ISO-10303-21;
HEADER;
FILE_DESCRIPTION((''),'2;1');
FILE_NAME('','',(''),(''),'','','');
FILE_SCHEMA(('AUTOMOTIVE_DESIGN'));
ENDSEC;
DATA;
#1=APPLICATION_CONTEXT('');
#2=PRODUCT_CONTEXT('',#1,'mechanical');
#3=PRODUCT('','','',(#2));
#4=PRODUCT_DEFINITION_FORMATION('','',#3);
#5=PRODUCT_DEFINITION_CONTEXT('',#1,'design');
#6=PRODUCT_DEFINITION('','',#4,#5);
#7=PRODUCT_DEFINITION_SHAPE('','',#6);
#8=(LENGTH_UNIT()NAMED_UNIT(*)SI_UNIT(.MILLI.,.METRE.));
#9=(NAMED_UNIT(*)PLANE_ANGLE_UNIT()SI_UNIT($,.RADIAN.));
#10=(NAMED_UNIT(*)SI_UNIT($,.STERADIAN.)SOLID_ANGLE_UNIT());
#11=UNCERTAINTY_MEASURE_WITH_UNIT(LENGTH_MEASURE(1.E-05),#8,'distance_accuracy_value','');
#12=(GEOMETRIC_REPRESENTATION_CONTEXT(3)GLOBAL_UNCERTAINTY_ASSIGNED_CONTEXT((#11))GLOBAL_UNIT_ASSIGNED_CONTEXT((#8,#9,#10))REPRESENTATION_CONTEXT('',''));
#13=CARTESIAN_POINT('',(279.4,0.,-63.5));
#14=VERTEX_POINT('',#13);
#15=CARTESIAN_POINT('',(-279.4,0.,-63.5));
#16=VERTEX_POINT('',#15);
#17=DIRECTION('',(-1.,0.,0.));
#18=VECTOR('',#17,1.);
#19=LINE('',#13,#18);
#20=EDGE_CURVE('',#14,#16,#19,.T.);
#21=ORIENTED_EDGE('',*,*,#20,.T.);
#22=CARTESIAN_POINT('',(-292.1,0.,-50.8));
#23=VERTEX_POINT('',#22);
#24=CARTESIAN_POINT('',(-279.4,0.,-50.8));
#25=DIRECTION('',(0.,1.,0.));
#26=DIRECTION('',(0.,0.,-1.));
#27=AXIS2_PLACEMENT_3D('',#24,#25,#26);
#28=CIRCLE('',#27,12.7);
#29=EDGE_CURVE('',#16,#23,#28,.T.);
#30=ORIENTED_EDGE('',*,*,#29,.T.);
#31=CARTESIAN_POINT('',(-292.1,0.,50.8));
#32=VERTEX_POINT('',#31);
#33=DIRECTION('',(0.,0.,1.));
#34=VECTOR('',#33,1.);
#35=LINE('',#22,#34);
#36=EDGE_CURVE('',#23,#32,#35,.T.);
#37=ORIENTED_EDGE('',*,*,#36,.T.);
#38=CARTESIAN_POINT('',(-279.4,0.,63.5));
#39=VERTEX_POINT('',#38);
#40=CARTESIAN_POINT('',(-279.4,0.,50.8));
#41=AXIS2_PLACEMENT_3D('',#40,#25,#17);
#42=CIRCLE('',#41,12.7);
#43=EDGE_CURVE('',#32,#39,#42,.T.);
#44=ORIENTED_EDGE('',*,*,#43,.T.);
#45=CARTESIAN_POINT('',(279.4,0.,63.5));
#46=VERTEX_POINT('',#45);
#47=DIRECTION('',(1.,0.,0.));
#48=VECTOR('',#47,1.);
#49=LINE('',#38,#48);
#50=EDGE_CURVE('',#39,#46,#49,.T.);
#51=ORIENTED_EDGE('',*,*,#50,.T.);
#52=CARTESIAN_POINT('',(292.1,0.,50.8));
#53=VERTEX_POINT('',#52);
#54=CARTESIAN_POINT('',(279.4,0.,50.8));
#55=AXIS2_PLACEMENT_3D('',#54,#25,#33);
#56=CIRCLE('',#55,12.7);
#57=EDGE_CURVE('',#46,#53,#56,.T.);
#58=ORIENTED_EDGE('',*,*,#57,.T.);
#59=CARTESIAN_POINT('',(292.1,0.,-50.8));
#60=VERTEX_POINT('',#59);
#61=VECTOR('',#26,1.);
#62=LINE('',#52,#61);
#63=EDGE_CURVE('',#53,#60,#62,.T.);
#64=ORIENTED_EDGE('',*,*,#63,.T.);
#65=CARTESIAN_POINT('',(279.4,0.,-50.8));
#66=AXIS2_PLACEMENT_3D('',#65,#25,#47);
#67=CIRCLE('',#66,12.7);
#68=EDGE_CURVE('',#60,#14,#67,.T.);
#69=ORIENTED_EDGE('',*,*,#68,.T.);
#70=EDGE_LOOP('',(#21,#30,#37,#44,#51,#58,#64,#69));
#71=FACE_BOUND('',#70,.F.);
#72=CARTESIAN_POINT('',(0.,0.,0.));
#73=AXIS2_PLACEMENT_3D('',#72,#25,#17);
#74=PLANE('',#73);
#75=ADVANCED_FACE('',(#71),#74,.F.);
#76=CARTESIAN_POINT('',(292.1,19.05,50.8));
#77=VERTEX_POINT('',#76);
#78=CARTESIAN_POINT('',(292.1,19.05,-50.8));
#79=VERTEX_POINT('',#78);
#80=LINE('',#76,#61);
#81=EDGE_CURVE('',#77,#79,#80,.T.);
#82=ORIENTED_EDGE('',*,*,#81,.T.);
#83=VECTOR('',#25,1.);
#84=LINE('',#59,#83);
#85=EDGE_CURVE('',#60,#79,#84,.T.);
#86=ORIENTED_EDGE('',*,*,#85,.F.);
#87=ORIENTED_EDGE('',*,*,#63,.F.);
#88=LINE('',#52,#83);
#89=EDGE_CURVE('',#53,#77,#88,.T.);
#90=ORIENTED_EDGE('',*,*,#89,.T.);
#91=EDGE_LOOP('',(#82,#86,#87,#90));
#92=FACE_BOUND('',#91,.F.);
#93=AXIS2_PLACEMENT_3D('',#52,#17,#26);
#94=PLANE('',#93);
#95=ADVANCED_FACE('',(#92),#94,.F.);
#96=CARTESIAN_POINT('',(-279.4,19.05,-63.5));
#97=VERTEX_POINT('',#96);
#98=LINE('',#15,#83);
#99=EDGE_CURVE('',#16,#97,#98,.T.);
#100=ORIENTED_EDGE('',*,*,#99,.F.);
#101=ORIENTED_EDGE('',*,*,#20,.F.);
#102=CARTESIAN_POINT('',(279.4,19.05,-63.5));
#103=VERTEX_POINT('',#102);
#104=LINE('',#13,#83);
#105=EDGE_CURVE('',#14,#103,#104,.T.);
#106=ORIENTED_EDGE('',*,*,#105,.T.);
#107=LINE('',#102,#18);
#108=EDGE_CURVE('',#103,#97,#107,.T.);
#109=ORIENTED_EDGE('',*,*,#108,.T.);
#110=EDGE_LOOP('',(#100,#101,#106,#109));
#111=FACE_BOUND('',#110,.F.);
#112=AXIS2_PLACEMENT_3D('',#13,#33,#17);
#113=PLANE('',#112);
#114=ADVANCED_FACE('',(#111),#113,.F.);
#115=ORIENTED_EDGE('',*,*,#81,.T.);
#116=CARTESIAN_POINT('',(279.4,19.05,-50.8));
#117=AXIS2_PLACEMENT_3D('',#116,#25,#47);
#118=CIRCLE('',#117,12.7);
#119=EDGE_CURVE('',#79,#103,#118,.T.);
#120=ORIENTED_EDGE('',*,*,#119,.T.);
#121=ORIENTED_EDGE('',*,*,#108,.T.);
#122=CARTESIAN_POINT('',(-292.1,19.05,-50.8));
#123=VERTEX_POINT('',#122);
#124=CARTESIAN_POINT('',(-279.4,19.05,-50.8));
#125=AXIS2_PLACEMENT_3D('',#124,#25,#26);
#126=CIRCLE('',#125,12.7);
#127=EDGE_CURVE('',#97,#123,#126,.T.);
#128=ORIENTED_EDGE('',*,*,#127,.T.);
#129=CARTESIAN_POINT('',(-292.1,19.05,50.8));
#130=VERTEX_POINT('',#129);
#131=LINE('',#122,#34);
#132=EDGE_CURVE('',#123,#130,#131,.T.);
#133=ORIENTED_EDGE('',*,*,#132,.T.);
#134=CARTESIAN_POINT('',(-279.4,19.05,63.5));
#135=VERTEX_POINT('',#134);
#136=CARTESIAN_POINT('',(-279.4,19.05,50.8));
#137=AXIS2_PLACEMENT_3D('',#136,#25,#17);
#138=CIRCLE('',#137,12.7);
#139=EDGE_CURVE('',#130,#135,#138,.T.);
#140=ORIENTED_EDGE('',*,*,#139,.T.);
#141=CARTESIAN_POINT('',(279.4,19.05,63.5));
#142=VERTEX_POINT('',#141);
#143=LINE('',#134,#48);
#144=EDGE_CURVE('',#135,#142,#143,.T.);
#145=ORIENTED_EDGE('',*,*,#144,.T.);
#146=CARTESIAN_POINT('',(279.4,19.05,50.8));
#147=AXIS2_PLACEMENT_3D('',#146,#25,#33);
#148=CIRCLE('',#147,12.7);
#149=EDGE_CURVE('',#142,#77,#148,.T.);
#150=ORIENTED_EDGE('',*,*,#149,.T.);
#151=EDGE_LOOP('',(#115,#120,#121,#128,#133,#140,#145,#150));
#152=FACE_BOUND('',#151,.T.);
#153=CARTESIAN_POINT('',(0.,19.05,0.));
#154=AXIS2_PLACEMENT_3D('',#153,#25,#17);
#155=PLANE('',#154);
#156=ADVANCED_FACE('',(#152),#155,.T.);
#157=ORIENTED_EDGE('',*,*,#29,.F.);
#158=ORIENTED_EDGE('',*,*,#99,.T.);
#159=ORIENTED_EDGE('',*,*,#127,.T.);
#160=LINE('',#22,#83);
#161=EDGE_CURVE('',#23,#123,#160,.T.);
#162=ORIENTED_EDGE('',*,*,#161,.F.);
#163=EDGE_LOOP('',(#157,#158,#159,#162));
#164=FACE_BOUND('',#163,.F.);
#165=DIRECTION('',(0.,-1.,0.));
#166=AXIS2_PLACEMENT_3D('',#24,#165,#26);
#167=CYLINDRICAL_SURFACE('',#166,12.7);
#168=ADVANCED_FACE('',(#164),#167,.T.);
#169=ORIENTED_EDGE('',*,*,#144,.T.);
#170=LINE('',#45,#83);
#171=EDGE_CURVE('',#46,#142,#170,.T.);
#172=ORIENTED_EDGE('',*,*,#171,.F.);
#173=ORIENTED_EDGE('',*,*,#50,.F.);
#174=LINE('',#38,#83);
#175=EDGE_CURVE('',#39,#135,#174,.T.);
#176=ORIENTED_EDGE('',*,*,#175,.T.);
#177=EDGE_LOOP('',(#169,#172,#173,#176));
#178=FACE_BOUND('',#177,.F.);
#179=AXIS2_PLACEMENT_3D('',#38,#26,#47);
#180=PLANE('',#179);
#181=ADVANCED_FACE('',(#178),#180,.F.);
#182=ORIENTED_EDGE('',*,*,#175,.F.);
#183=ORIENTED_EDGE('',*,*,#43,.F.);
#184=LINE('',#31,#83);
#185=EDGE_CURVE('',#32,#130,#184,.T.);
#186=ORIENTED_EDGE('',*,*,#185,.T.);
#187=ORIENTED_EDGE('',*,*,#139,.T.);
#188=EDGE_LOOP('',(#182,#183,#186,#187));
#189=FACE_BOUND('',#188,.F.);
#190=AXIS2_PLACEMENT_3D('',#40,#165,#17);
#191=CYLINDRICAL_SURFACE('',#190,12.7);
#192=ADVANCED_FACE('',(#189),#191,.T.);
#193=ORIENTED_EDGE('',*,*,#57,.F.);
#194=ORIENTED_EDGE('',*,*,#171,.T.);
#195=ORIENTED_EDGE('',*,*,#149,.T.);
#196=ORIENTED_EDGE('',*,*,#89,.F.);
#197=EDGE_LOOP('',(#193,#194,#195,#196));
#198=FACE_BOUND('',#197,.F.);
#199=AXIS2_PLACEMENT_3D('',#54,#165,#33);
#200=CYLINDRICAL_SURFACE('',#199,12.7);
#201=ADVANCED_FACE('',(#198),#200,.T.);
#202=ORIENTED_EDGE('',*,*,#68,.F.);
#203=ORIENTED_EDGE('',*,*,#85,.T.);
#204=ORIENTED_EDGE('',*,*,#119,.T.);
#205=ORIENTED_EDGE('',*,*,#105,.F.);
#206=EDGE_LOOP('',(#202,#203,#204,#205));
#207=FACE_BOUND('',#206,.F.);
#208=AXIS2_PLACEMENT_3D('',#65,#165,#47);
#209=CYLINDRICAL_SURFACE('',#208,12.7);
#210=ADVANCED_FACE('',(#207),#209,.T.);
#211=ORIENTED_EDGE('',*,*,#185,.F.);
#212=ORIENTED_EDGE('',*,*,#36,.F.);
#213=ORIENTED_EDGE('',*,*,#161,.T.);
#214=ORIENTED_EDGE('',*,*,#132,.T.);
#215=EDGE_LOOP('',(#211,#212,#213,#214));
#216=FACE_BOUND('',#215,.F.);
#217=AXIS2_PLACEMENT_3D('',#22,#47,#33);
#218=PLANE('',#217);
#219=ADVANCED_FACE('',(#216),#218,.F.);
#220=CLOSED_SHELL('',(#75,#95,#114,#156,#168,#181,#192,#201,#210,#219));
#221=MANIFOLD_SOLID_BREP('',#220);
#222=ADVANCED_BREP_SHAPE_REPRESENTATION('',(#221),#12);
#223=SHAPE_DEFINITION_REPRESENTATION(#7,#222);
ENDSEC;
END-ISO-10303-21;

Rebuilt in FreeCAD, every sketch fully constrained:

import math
import FreeCAD as App
import Part
import Sketcher

V = App.Vector
Q = App.Units.Quantity

doc = App.newDocument("Part")
body = doc.addObject("PartDesign::Body", "Body")

# Sketch on XZ plane
sketch1 = doc.addObject("Sketcher::SketchObject", "Sketch")
body.addObject(sketch1)
sketch1.AttachmentSupport = (doc.XZ_Plane, [""])
sketch1.MapMode = "FlatFace"
sketch1.addGeometry(Part.ArcOfCircle(Part.Circle(V(-279, 51, 0), V(0, 0, 1), 13), math.radians(90), math.radians(180)), False)
sketch1.addGeometry(Part.LineSegment(V(-279, 64, 0), V(279, 64, 0)), False)
sketch1.addGeometry(Part.ArcOfCircle(Part.Circle(V(279, 51, 0), V(0, 0, 1), 13), math.radians(0), math.radians(90)), False)
sketch1.addGeometry(Part.LineSegment(V(292, 51, 0), V(292, -51, 0)), False)
sketch1.addGeometry(Part.ArcOfCircle(Part.Circle(V(279, -51, 0), V(0, 0, 1), 13), math.radians(-90), math.radians(0)), False)
sketch1.addGeometry(Part.LineSegment(V(279, -64, 0), V(-279, -64, 0)), False)
sketch1.addGeometry(Part.ArcOfCircle(Part.Circle(V(-279, -51, 0), V(0, 0, 1), 13), math.radians(180), math.radians(270)), False)
sketch1.addGeometry(Part.LineSegment(V(-292, -51, 0), V(-292, 51, 0)), False)
sketch1.addConstraint(Sketcher.Constraint("Tangent", 0, 1, 1, 1))
sketch1.addConstraint(Sketcher.Constraint("Tangent", 1, 2, 2, 2))
sketch1.addConstraint(Sketcher.Constraint("Tangent", 2, 1, 3, 1))
sketch1.addConstraint(Sketcher.Constraint("Tangent", 3, 2, 4, 2))
sketch1.addConstraint(Sketcher.Constraint("Tangent", 4, 1, 5, 1))
sketch1.addConstraint(Sketcher.Constraint("Tangent", 5, 2, 6, 2))
sketch1.addConstraint(Sketcher.Constraint("Tangent", 6, 1, 7, 1))
sketch1.addConstraint(Sketcher.Constraint("Tangent", 7, 2, 0, 2))
sketch1.addConstraint(Sketcher.Constraint("Horizontal", 1))
sketch1.addConstraint(Sketcher.Constraint("Vertical", 3))
sketch1.addConstraint(Sketcher.Constraint("Horizontal", 5))
sketch1.addConstraint(Sketcher.Constraint("Vertical", 7))
sketch1.addConstraint(Sketcher.Constraint("Equal", 0, 2))
sketch1.addConstraint(Sketcher.Constraint("Equal", 2, 4))
sketch1.addConstraint(Sketcher.Constraint("Equal", 4, 6))
sketch1.addConstraint(Sketcher.Constraint("Symmetric", 0, 3, 4, 3, -1, 1))
sketch1.addConstraint(Sketcher.Constraint("Radius", 0, Q("0.5 in")))
sketch1.addConstraint(Sketcher.Constraint("DistanceY", 4, 1, 1, 2, Q("5 in")))
sketch1.addConstraint(Sketcher.Constraint("DistanceX", 1, 1, 1, 2, Q("22 in")))
pad1 = doc.addObject("PartDesign::Pad", "Pad")
body.addObject(pad1)
pad1.Profile = sketch1
pad1.Length = Q("0.75 in")
pad1.Reversed = True

doc.recompute()
